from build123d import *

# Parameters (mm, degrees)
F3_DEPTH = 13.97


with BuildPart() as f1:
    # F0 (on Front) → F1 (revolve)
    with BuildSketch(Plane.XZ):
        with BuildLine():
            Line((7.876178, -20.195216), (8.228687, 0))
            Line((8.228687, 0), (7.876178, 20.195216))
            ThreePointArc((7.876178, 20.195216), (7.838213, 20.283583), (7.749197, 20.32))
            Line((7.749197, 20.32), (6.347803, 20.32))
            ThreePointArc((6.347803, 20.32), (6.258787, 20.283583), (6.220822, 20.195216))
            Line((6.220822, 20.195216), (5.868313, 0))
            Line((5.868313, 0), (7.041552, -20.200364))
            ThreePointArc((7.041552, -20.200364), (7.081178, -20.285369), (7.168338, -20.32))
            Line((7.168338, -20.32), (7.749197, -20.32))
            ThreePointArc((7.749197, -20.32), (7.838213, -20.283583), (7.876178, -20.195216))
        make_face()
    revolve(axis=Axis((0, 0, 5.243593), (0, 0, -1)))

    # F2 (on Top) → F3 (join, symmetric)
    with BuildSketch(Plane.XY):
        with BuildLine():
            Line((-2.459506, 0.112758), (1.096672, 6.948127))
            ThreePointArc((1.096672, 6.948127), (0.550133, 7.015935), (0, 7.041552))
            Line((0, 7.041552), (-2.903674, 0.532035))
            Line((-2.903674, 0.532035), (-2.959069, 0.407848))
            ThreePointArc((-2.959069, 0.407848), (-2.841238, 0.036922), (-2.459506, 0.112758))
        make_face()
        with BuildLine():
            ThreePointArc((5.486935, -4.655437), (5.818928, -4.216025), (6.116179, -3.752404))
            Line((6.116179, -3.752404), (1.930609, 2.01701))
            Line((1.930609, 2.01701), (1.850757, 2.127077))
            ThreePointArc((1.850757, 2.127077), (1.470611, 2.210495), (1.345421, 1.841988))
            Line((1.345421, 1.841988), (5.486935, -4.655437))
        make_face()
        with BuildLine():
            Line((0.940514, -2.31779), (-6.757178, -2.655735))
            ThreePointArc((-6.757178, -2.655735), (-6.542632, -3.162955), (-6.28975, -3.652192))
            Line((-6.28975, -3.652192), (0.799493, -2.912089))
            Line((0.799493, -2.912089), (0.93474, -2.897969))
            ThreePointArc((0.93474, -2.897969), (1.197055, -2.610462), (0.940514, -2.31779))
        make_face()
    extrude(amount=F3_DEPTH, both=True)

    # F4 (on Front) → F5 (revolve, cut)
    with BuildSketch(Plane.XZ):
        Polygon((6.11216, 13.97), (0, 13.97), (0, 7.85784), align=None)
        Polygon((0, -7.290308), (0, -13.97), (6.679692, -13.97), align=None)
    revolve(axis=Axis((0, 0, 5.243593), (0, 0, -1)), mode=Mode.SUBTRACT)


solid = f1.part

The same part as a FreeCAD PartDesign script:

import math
import FreeCAD as App
import Part
import Sketcher
from FreeCAD import Vector
Q = App.Units.Quantity

doc = App.newDocument("Part")
body = doc.addObject("PartDesign::Body", "Body")

sketch1 = body.newObject("Sketcher::SketchObject", "Sketch")
sketch1.AttachmentSupport = (doc.getObject("XZ_Plane"), [""])
sketch1.MapMode = "FlatFace"
sketch1.addGeometry(Part.LineSegment(Vector(7.88, -20.2, 0), Vector(8.23, 0, 0)), False)
sketch1.addGeometry(Part.LineSegment(Vector(8.23, 0, 0), Vector(7.88, 20.2, 0)), False)
sketch1.addGeometry(Part.ArcOfCircle(Part.Circle(Vector(7.75, 20.19, 0), Vector(0, 0, 1), 0.13), math.radians(1), math.radians(90)), False)
sketch1.addGeometry(Part.LineSegment(Vector(7.75, 20.32, 0), Vector(6.35, 20.32, 0)), False)
sketch1.addGeometry(Part.ArcOfCircle(Part.Circle(Vector(6.35, 20.19, 0), Vector(0, 0, 1), 0.13), math.radians(90), math.radians(179)), False)
sketch1.addGeometry(Part.LineSegment(Vector(6.22, 20.2, 0), Vector(5.87, 0, 0)), False)
sketch1.addGeometry(Part.LineSegment(Vector(5.87, 0, 0), Vector(7.04, -20.2, 0)), False)
sketch1.addGeometry(Part.ArcOfCircle(Part.Circle(Vector(7.17, -20.19, 0), Vector(0, 0, 1), 0.13), math.radians(-177), math.radians(-90)), False)
sketch1.addGeometry(Part.LineSegment(Vector(7.17, -20.32, 0), Vector(7.75, -20.32, 0)), False)
sketch1.addGeometry(Part.ArcOfCircle(Part.Circle(Vector(7.75, -20.19, 0), Vector(0, 0, 1), 0.13), math.radians(-90), math.radians(-1)), False)
sketch1.addConstraint(Sketcher.Constraint("Coincident", 0, 2, 1, 1))
sketch1.addConstraint(Sketcher.Constraint("Coincident", 1, 2, 2, 1))
sketch1.addConstraint(Sketcher.Constraint("Coincident", 2, 2, 3, 1))
sketch1.addConstraint(Sketcher.Constraint("Coincident", 3, 2, 4, 1))
sketch1.addConstraint(Sketcher.Constraint("Coincident", 4, 2, 5, 1))
sketch1.addConstraint(Sketcher.Constraint("Coincident", 5, 2, 6, 1))
sketch1.addConstraint(Sketcher.Constraint("Coincident", 6, 2, 7, 1))
sketch1.addConstraint(Sketcher.Constraint("Coincident", 7, 2, 8, 1))
sketch1.addConstraint(Sketcher.Constraint("Coincident", 8, 2, 9, 1))
sketch1.addConstraint(Sketcher.Constraint("Coincident", 9, 2, 0, 1))
sketch1.addConstraint(Sketcher.Constraint("Horizontal", 3))
sketch1.addConstraint(Sketcher.Constraint("Horizontal", 8))
sketch1.addConstraint(Sketcher.Constraint("Equal", 2, 4))
sketch1.addConstraint(Sketcher.Constraint("Equal", 4, 7))
sketch1.addConstraint(Sketcher.Constraint("Equal", 7, 9))
sketch1.addConstraint(Sketcher.Constraint("Symmetric", 2, 3, 9, 3, -1))
sketch1.addConstraint(Sketcher.Constraint("PointOnObject", 0, 2, -1))
sketch1.addConstraint(Sketcher.Constraint("PointOnObject", 5, 2, -1))
sketch1.addConstraint(Sketcher.Constraint("Parallel", 0, 5))
sketch1.addConstraint(Sketcher.Constraint("Horizontal", 1, 2, 4, 2))
sketch1.addConstraint(Sketcher.Constraint("Vertical", 9, 3, 2, 2))
sketch1.addConstraint(Sketcher.Constraint("Vertical", 4, 3, 3, 2))
sketch1.addConstraint(Sketcher.Constraint("Vertical", 2, 2, 8, 2))
sketch1.addConstraint(Sketcher.Constraint("Equal", 0, 1))
sketch1.addConstraint(Sketcher.Constraint("Angle", 0, Q("88.999999 deg")))
sketch1.addConstraint(Sketcher.Constraint("Radius", 2, Q("0.005 in")))
sketch1.addConstraint(Sketcher.Constraint("DistanceY", -1, 1, 2, 2, Q("0.8 in")))
sketch1.addConstraint(Sketcher.Constraint("DistanceX", 8, 1, 8, 2, Q("0.580859 mm")))
sketch1.addConstraint(Sketcher.Constraint("DistanceX", 3, 2, 3, 1, Q("1.401394 mm")))
sketch1.addConstraint(Sketcher.Constraint("DistanceX", -1, 1, 7, 3, Q("7.168339 mm")))
sketch1.addConstraint(Sketcher.Constraint("DistanceX", -1, 1, 1, 2, Q("7.876178 mm")))
sketch1.addConstraint(Sketcher.Constraint("DistanceX", 5, 2, 6, 2, Q("1.173239 mm")))
sketch1.addConstraint(Sketcher.Constraint("DistanceY", 6, 2, 9, 2, Q("0.005148 mm")))
revolution = body.newObject("PartDesign::Revolution", "Revolution")
revolution.Profile = sketch1
revolution.ReferenceAxis = (sketch1, ["V_Axis"])
revolution.Angle = 360

sketch2 = body.newObject("Sketcher::SketchObject", "Sketch001")
sketch2.AttachmentSupport = (doc.getObject("XY_Plane"), [""])
sketch2.MapMode = "FlatFace"
sketch2.addGeometry(Part.LineSegment(Vector(-2.459506, 0.112758, 0), Vector(1.096672, 6.948127, 0)), False)
sketch2.addGeometry(Part.ArcOfCircle(Part.Circle(Vector(-0.057865, -0.121074, 0), Vector(0, 0, 1), 7.162859), math.radians(80.72438), math.radians(89.537129)), False)
sketch2.addGeometry(Part.LineSegment(Vector(0, 7.041552, 0), Vector(-2.903674, 0.532035, 0)), False)
sketch2.addGeometry(Part.LineSegment(Vector(-2.903674, 0.532035, 0), Vector(-2.959069, 0.407848, 0)), False)
sketch2.addGeometry(Part.ArcOfCircle(Part.Circle(Vector(-2.692771, 0.288263, 0), Vector(0, 0, 1), 0.291916), math.radians(155.816902), math.radians(323.042722)), False)
sketch2.addGeometry(Part.ArcOfCircle(Part.Circle(Vector(-0.05776, -0.12108, 0), Vector(0, 0, 1), 7.162684), math.radians(-39.275717), math.radians(-30.462756)), False)
sketch2.addGeometry(Part.LineSegment(Vector(6.116179, -3.752404, 0), Vector(1.930609, 2.01701, 0)), False)
sketch2.addGeometry(Part.LineSegment(Vector(1.930609, 2.01701, 0), Vector(1.850757, 2.127077, 0)), False)
sketch2.addGeometry(Part.ArcOfCircle(Part.Circle(Vector(1.614046, 1.956249, 0), Vector(0, 0, 1), 0.291915), math.radians(35.816967), math.radians(203.042705)), False)
sketch2.addGeometry(Part.LineSegment(Vector(1.345421, 1.841988, 0), Vector(5.486935, -4.655437, 0)), False)
sketch2.addGeometry(Part.LineSegment(Vector(0.940514, -2.31779, 0), Vector(-6.757178, -2.655735, 0)), False)
sketch2.addGeometry(Part.ArcOfCircle(Part.Circle(Vector(-0.057888, -0.121027, 0), Vector(0, 0, 1), 7.162767), math.radians(-159.275624), math.radians(-150.46277)), False)
sketch2.addGeometry(Part.LineSegment(Vector(-6.28975, -3.652192, 0), Vector(0.799493, -2.912089, 0)), False)
sketch2.addGeometry(Part.LineSegment(Vector(0.799493, -2.912089, 0), Vector(0.93474, -2.897969, 0)), False)
sketch2.addGeometry(Part.ArcOfCircle(Part.Circle(Vector(0.905154, -2.607556, 0), Vector(0, 0, 1), 0.291916), math.radians(-84.182939), math.radians(83.04255)), False)
sketch2.addConstraint(Sketcher.Constraint("Coincident", 0, 2, 1, 1))
sketch2.addConstraint(Sketcher.Constraint("Coincident", 1, 2, 2, 1))
sketch2.addConstraint(Sketcher.Constraint("Coincident", 2, 2, 3, 1))
sketch2.addConstraint(Sketcher.Constraint("Coincident", 3, 2, 4, 1))
sketch2.addConstraint(Sketcher.Constraint("Coincident", 4, 2, 0, 1))
sketch2.addConstraint(Sketcher.Constraint("Coincident", 5, 2, 6, 1))
sketch2.addConstraint(Sketcher.Constraint("Coincident", 6, 2, 7, 1))
sketch2.addConstraint(Sketcher.Constraint("Coincident", 7, 2, 8, 1))
sketch2.addConstraint(Sketcher.Constraint("Coincident", 8, 2, 9, 1))
sketch2.addConstraint(Sketcher.Constraint("Coincident", 9, 2, 5, 1))
sketch2.addConstraint(Sketcher.Constraint("Coincident", 10, 2, 11, 1))
sketch2.addConstraint(Sketcher.Constraint("Coincident", 11, 2, 12, 1))
sketch2.addConstraint(Sketcher.Constraint("Coincident", 12, 2, 13, 1))
sketch2.addConstraint(Sketcher.Constraint("Coincident", 13, 2, 14, 1))
sketch2.addConstraint(Sketcher.Constraint("Coincident", 14, 2, 10, 1))
sketch2.addConstraint(Sketcher.Constraint("PointOnObject", 1, 2, -2))
sketch2.addConstraint(Sketcher.Constraint("Radius", 1, Q("7.162859 mm")))
sketch2.addConstraint(Sketcher.Constraint("Radius", 4, Q("0.291916 mm")))
sketch2.addConstraint(Sketcher.Constraint("Radius", 5, Q("7.162684 mm")))
sketch2.addConstraint(Sketcher.Constraint("Radius", 8, Q("0.291915 mm")))
sketch2.addConstraint(Sketcher.Constraint("Radius", 11, Q("7.162767 mm")))
sketch2.addConstraint(Sketcher.Constraint("Radius", 14, Q("0.291916 mm")))
sketch2.addConstraint(Sketcher.Constraint("DistanceX", 11, 3, 9, 2, Q("0.2183001 in")))
sketch2.addConstraint(Sketcher.Constraint("DistanceY", 1, 3, 0, 2, Q("7.069201 mm")))
sketch2.addConstraint(Sketcher.Constraint("DistanceX", 1, 3, 9, 2, Q("5.5448 mm")))
sketch2.addConstraint(Sketcher.Constraint("DistanceY", 10, 2, 4, 3, Q("2.943998 mm")))
sketch2.addConstraint(Sketcher.Constraint("DistanceX", 4, 2, 12, 2, Q("3.258999 mm")))
sketch2.addConstraint(Sketcher.Constraint("DistanceX", 5, 3, 13, 2, Q("0.9925 mm")))
sketch2.addConstraint(Sketcher.Constraint("DistanceY", 12, 2, 14, 2, Q("0.594299 mm")))
sketch2.addConstraint(Sketcher.Constraint("Distance", 3, Q("0.135982 mm")))
sketch2.addConstraint(Sketcher.Constraint("Distance", 7, Q("0.135982 mm")))
sketch2.addConstraint(Sketcher.Constraint("Distance", 12, Q("7.127771 mm")))
sketch2.addConstraint(Sketcher.Constraint("DistanceX", 4, 3, -1, 1, Q("2.692771 mm")))
sketch2.addConstraint(Sketcher.Constraint("DistanceX", 5, 3, -1, 1, Q("0.05776 mm")))
sketch2.addConstraint(Sketcher.Constraint("DistanceY", 5, 3, -1, 1, Q("0.12108 mm")))
sketch2.addConstraint(Sketcher.Constraint("DistanceY", -1, 1, 8, 3, Q("1.956249 mm")))
sketch2.addConstraint(Sketcher.Constraint("DistanceX", 11, 3, -1, 1, Q("0.057888 mm")))
sketch2.addConstraint(Sketcher.Constraint("DistanceY", -1, 1, 1, 2, Q("7.041552 mm")))
sketch2.addConstraint(Sketcher.Constraint("DistanceX", 3, 2, -1, 1, Q("2.959069 mm")))
sketch2.addConstraint(Sketcher.Constraint("DistanceX", -1, 1, 5, 2, Q("6.116179 mm")))
sketch2.addConstraint(Sketcher.Constraint("DistanceX", -1, 1, 6, 2, Q("1.930609 mm")))
sketch2.addConstraint(Sketcher.Constraint("DistanceY", -1, 1, 6, 2, Q("2.01701 mm")))
sketch2.addConstraint(Sketcher.Constraint("DistanceX", -1, 1, 8, 2, Q("1.345421 mm")))
sketch2.addConstraint(Sketcher.Constraint("DistanceY", -1, 1, 8, 2, Q("1.841988 mm")))
sketch2.addConstraint(Sketcher.Constraint("DistanceX", 11, 2, -1, 1, Q("6.28975 mm")))
sketch2.addConstraint(Sketcher.Constraint("DistanceY", 12, 2, -1, 1, Q("2.912089 mm")))
sketch2.addConstraint(Sketcher.Constraint("DistanceY", 13, 2, -1, 1, Q("2.897969 mm")))
sketch2.addConstraint(Sketcher.Constraint("DistanceY", 11, 3, 4, 3, Q("0.40929 mm")))
sketch2.addConstraint(Sketcher.Constraint("DistanceX", 1, 3, 14, 3, Q("0.963019 mm")))
sketch2.addConstraint(Sketcher.Constraint("DistanceY", 14, 3, 11, 3, Q("2.48653 mm")))
sketch2.addConstraint(Sketcher.Constraint("DistanceY", 4, 3, 2, 2, Q("0.243772 mm")))
pad1 = body.newObject("PartDesign::Pad", "Pad")
pad1.Profile = sketch2
pad1.Length = Q("1.1 in")
pad1.Midplane = True

sketch3 = body.newObject("Sketcher::SketchObject", "Sketch002")
sketch3.AttachmentSupport = (doc.getObject("XZ_Plane"), [""])
sketch3.MapMode = "FlatFace"
sketch3.addGeometry(Part.LineSegment(Vector(6, 14, 0), Vector(0, 14, 0)), False)
sketch3.addGeometry(Part.LineSegment(Vector(0, 14, 0), Vector(0, 8, 0)), False)
sketch3.addGeometry(Part.LineSegment(Vector(0, 8, 0), Vector(6, 14, 0)), False)
sketch3.addGeometry(Part.LineSegment(Vector(0, -7, 0), Vector(0, -14, 0)), False)
sketch3.addGeometry(Part.LineSegment(Vector(0, -14, 0), Vector(7, -14, 0)), False)
sketch3.addGeometry(Part.LineSegment(Vector(7, -14, 0), Vector(0, -7, 0)), False)
sketch3.addConstraint(Sketcher.Constraint("Coincident", 0, 2, 1, 1))
sketch3.addConstraint(Sketcher.Constraint("Coincident", 1, 2, 2, 1))
sketch3.addConstraint(Sketcher.Constraint("Coincident", 2, 2, 0, 1))
sketch3.addConstraint(Sketcher.Constraint("Coincident", 3, 2, 4, 1))
sketch3.addConstraint(Sketcher.Constraint("Coincident", 4, 2, 5, 1))
sketch3.addConstraint(Sketcher.Constraint("Coincident", 5, 2, 3, 1))
sketch3.addConstraint(Sketcher.Constraint("Horizontal", 0))
sketch3.addConstraint(Sketcher.Constraint("Vertical", 1))
sketch3.addConstraint(Sketcher.Constraint("Vertical", 3))
sketch3.addConstraint(Sketcher.Constraint("Horizontal", 4))
sketch3.addConstraint(Sketcher.Constraint("Symmetric", 0, 2, 3, 2, -1, 1))
sketch3.addConstraint(Sketcher.Constraint("PointOnObject", 0, 2, -2))
sketch3.addConstraint(Sketcher.Constraint("Perpendicular", 2, 5))
sketch3.addConstraint(Sketcher.Constraint("Equal", 0, 1))
sketch3.addConstraint(Sketcher.Constraint("DistanceY", 3, 2, 0, 2, Q("1.1 in")))
sketch3.addConstraint(Sketcher.Constraint("Distance", 2, Q("8.6439 mm")))
sketch3.addConstraint(Sketcher.Constraint("Distance", 5, Q("9.446511 mm")))
groove = body.newObject("PartDesign::Groove", "Groove")
groove.Profile = sketch3
groove.ReferenceAxis = (sketch3, ["V_Axis"])
groove.Angle = 360

doc.recompute()
